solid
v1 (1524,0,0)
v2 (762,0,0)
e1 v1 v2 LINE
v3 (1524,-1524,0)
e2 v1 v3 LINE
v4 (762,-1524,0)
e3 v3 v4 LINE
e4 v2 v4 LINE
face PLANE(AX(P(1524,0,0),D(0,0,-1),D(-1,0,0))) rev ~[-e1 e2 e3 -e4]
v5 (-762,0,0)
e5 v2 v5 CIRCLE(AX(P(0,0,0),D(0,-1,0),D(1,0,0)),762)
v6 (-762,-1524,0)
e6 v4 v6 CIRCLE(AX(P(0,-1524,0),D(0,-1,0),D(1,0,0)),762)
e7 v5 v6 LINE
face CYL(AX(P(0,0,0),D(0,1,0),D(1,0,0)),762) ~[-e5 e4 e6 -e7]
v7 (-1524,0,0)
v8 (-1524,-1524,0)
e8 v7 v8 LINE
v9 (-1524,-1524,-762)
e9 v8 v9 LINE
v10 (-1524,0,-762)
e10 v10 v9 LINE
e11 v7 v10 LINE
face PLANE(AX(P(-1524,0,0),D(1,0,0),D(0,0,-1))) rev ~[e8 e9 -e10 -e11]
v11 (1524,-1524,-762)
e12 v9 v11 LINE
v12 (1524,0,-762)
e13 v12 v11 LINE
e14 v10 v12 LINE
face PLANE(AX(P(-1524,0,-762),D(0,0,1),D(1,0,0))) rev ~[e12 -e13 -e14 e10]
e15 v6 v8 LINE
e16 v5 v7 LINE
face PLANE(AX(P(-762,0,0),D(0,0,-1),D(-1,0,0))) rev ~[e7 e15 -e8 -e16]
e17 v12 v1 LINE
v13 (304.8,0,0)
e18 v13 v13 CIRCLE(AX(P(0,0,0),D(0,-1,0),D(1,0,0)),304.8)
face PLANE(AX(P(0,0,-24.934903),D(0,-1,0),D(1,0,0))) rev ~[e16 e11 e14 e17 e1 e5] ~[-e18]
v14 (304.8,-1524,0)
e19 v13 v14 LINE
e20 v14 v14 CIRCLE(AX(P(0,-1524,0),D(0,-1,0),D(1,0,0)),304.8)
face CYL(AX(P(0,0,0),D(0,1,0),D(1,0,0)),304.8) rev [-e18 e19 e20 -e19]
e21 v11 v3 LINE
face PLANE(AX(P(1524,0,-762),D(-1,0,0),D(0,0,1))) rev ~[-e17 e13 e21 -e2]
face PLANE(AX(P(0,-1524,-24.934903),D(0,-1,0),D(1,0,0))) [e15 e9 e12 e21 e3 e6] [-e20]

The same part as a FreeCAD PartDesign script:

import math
import FreeCAD as App
import Part
import Sketcher
Q = App.Units.Quantity

doc = App.newDocument("Part")
params = doc.addObject("Spreadsheet::Sheet", "Params")
for row, (alias, value) in enumerate([
    ("sketch1_diameter", "24 in"),
    ("sketch1_radius", "30 in"),
    ("sketch1_width", "30 in"),
    ("pad1_length", "60 in"),
], start=1):
    params.set(f"A{row}", alias)
    params.set(f"B{row}", "=" + value)
    params.setAlias(f"B{row}", alias)

body = doc.addObject("PartDesign::Body", "Body")

# Sketch on XZ plane
sketch1 = body.newObject("Sketcher::SketchObject", "Sketch")
sketch1.AttachmentSupport = (doc.getObject("XZ_Plane"), [""])
sketch1.MapMode = "FlatFace"
sketch1.addGeometry([
    Part.LineSegment(App.Vector(1524, -762, 0), App.Vector(1524, 0, 0)),  # 0
    Part.LineSegment(App.Vector(1524, 0, 0), App.Vector(762, 0, 0)),  # 1
    Part.ArcOfCircle(Part.Circle(App.Vector(0, 0, 0), App.Vector(0, 0, 1), 762), math.radians(0), math.radians(180)),  # 2
    Part.LineSegment(App.Vector(-762, 0, 0), App.Vector(-1524, 0, 0)),  # 3
    Part.LineSegment(App.Vector(-1524, 0, 0), App.Vector(-1524, -762, 0)),  # 4
    Part.LineSegment(App.Vector(-1524, -762, 0), App.Vector(1524, -762, 0)),  # 5
    Part.Circle(App.Vector(0, 0, 0), App.Vector(0, 0, 1), 305),  # 6
], False)
sketch1.addConstraint([
    Sketcher.Constraint("Coincident", 0, 2, 1, 1),
    Sketcher.Constraint("Coincident", 1, 2, 2, 1),
    Sketcher.Constraint("Coincident", 2, 2, 3, 1),
    Sketcher.Constraint("Coincident", 3, 2, 4, 1),
    Sketcher.Constraint("Coincident", 4, 2, 5, 1),
    Sketcher.Constraint("Coincident", 5, 2, 0, 1),
    Sketcher.Constraint("Vertical", 0),
    Sketcher.Constraint("Horizontal", 1),
    Sketcher.Constraint("Horizontal", 3),
    Sketcher.Constraint("Vertical", 4),
    Sketcher.Constraint("Horizontal", 5),
    Sketcher.Constraint("Coincident", 2, 3, -1, 1),
    Sketcher.Constraint("Coincident", 6, 3, -1, 1),
    Sketcher.Constraint("Symmetric", 0, 2, 3, 2, -1, 1),
    Sketcher.Constraint("PointOnObject", 0, 2, -1),
    Sketcher.Constraint("Equal", 3, 0),
    Sketcher.Constraint("Diameter", 6, Q("24 in")),
    Sketcher.Constraint("Radius", 2, Q("30 in")),
    Sketcher.Constraint("DistanceX", 1, 2, 1, 1, Q("30 in")),
])
sketch1.setExpression("Constraints[16]", "Params.sketch1_diameter")
sketch1.setExpression("Constraints[17]", "Params.sketch1_radius")
sketch1.setExpression("Constraints[18]", "Params.sketch1_width")
pad1 = body.newObject("PartDesign::Pad", "Pad")
pad1.Profile = sketch1
pad1.setExpression("Length", "Params.pad1_length")

doc.recompute()
